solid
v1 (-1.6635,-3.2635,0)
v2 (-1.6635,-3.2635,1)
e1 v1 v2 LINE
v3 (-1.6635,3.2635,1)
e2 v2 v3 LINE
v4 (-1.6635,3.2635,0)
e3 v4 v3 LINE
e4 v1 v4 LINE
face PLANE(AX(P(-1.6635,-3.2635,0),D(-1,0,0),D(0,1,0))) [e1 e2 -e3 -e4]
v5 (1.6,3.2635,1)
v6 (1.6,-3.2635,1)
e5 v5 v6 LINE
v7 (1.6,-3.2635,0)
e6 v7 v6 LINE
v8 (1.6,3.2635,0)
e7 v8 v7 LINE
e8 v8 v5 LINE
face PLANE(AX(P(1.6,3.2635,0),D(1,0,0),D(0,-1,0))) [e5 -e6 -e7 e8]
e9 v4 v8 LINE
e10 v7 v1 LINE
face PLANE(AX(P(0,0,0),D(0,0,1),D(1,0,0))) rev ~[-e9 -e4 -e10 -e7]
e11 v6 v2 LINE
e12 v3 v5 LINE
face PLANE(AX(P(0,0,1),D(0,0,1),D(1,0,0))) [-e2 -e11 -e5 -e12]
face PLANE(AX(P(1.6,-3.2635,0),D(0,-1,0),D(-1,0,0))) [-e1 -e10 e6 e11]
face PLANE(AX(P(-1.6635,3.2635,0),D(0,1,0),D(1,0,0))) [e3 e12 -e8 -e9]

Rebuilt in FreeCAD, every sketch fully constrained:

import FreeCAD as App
import Part
import Sketcher

V = App.Vector


def add_polygon(sketch, points):
    """Adds a closed chain of lines whose ends are joined by coincident constraints."""
    first, n = sketch.GeometryCount, len(points)
    for a, b in zip(points, points[1:] + points[:1]):
        sketch.addGeometry(Part.LineSegment(App.Vector(*a, 0), App.Vector(*b, 0)), False)
    for i in range(n):
        sketch.addConstraint(Sketcher.Constraint("Coincident", first + i, 2, first + (i + 1) % n, 1))

doc = App.newDocument("Part")
body = doc.addObject("PartDesign::Body", "Body")

# Sketch on XY plane
sketch1 = body.newObject("Sketcher::SketchObject", "Sketch")
sketch1.AttachmentSupport = (doc.getObject("XY_Plane"), [""])
sketch1.MapMode = "FlatFace"
add_polygon(sketch1, [(1.6, 3.3), (-1.7, 3.3), (-1.7, -3.3), (1.6, -3.3)])  # lines 0-3
sketch1.addConstraint(Sketcher.Constraint("Horizontal", 0))
sketch1.addConstraint(Sketcher.Constraint("Vertical", 1))
sketch1.addConstraint(Sketcher.Constraint("Horizontal", 2))
sketch1.addConstraint(Sketcher.Constraint("Vertical", 3))
sketch1.addConstraint(Sketcher.Constraint("DistanceX", -1, 1, 2, 2, 1.6))
sketch1.addConstraint(Sketcher.Constraint("DistanceY", 1, 2, 1, 1, 6.527))
sketch1.addConstraint(Sketcher.Constraint("DistanceX", 0, 2, 0, 1, 3.2635))
sketch1.addConstraint(Sketcher.Constraint("DistanceY", -1, 1, 0, 2, 3.2635))
pad1 = body.newObject("PartDesign::Pad", "Pad")
pad1.Profile = sketch1
pad1.Length = 1

doc.recompute()
